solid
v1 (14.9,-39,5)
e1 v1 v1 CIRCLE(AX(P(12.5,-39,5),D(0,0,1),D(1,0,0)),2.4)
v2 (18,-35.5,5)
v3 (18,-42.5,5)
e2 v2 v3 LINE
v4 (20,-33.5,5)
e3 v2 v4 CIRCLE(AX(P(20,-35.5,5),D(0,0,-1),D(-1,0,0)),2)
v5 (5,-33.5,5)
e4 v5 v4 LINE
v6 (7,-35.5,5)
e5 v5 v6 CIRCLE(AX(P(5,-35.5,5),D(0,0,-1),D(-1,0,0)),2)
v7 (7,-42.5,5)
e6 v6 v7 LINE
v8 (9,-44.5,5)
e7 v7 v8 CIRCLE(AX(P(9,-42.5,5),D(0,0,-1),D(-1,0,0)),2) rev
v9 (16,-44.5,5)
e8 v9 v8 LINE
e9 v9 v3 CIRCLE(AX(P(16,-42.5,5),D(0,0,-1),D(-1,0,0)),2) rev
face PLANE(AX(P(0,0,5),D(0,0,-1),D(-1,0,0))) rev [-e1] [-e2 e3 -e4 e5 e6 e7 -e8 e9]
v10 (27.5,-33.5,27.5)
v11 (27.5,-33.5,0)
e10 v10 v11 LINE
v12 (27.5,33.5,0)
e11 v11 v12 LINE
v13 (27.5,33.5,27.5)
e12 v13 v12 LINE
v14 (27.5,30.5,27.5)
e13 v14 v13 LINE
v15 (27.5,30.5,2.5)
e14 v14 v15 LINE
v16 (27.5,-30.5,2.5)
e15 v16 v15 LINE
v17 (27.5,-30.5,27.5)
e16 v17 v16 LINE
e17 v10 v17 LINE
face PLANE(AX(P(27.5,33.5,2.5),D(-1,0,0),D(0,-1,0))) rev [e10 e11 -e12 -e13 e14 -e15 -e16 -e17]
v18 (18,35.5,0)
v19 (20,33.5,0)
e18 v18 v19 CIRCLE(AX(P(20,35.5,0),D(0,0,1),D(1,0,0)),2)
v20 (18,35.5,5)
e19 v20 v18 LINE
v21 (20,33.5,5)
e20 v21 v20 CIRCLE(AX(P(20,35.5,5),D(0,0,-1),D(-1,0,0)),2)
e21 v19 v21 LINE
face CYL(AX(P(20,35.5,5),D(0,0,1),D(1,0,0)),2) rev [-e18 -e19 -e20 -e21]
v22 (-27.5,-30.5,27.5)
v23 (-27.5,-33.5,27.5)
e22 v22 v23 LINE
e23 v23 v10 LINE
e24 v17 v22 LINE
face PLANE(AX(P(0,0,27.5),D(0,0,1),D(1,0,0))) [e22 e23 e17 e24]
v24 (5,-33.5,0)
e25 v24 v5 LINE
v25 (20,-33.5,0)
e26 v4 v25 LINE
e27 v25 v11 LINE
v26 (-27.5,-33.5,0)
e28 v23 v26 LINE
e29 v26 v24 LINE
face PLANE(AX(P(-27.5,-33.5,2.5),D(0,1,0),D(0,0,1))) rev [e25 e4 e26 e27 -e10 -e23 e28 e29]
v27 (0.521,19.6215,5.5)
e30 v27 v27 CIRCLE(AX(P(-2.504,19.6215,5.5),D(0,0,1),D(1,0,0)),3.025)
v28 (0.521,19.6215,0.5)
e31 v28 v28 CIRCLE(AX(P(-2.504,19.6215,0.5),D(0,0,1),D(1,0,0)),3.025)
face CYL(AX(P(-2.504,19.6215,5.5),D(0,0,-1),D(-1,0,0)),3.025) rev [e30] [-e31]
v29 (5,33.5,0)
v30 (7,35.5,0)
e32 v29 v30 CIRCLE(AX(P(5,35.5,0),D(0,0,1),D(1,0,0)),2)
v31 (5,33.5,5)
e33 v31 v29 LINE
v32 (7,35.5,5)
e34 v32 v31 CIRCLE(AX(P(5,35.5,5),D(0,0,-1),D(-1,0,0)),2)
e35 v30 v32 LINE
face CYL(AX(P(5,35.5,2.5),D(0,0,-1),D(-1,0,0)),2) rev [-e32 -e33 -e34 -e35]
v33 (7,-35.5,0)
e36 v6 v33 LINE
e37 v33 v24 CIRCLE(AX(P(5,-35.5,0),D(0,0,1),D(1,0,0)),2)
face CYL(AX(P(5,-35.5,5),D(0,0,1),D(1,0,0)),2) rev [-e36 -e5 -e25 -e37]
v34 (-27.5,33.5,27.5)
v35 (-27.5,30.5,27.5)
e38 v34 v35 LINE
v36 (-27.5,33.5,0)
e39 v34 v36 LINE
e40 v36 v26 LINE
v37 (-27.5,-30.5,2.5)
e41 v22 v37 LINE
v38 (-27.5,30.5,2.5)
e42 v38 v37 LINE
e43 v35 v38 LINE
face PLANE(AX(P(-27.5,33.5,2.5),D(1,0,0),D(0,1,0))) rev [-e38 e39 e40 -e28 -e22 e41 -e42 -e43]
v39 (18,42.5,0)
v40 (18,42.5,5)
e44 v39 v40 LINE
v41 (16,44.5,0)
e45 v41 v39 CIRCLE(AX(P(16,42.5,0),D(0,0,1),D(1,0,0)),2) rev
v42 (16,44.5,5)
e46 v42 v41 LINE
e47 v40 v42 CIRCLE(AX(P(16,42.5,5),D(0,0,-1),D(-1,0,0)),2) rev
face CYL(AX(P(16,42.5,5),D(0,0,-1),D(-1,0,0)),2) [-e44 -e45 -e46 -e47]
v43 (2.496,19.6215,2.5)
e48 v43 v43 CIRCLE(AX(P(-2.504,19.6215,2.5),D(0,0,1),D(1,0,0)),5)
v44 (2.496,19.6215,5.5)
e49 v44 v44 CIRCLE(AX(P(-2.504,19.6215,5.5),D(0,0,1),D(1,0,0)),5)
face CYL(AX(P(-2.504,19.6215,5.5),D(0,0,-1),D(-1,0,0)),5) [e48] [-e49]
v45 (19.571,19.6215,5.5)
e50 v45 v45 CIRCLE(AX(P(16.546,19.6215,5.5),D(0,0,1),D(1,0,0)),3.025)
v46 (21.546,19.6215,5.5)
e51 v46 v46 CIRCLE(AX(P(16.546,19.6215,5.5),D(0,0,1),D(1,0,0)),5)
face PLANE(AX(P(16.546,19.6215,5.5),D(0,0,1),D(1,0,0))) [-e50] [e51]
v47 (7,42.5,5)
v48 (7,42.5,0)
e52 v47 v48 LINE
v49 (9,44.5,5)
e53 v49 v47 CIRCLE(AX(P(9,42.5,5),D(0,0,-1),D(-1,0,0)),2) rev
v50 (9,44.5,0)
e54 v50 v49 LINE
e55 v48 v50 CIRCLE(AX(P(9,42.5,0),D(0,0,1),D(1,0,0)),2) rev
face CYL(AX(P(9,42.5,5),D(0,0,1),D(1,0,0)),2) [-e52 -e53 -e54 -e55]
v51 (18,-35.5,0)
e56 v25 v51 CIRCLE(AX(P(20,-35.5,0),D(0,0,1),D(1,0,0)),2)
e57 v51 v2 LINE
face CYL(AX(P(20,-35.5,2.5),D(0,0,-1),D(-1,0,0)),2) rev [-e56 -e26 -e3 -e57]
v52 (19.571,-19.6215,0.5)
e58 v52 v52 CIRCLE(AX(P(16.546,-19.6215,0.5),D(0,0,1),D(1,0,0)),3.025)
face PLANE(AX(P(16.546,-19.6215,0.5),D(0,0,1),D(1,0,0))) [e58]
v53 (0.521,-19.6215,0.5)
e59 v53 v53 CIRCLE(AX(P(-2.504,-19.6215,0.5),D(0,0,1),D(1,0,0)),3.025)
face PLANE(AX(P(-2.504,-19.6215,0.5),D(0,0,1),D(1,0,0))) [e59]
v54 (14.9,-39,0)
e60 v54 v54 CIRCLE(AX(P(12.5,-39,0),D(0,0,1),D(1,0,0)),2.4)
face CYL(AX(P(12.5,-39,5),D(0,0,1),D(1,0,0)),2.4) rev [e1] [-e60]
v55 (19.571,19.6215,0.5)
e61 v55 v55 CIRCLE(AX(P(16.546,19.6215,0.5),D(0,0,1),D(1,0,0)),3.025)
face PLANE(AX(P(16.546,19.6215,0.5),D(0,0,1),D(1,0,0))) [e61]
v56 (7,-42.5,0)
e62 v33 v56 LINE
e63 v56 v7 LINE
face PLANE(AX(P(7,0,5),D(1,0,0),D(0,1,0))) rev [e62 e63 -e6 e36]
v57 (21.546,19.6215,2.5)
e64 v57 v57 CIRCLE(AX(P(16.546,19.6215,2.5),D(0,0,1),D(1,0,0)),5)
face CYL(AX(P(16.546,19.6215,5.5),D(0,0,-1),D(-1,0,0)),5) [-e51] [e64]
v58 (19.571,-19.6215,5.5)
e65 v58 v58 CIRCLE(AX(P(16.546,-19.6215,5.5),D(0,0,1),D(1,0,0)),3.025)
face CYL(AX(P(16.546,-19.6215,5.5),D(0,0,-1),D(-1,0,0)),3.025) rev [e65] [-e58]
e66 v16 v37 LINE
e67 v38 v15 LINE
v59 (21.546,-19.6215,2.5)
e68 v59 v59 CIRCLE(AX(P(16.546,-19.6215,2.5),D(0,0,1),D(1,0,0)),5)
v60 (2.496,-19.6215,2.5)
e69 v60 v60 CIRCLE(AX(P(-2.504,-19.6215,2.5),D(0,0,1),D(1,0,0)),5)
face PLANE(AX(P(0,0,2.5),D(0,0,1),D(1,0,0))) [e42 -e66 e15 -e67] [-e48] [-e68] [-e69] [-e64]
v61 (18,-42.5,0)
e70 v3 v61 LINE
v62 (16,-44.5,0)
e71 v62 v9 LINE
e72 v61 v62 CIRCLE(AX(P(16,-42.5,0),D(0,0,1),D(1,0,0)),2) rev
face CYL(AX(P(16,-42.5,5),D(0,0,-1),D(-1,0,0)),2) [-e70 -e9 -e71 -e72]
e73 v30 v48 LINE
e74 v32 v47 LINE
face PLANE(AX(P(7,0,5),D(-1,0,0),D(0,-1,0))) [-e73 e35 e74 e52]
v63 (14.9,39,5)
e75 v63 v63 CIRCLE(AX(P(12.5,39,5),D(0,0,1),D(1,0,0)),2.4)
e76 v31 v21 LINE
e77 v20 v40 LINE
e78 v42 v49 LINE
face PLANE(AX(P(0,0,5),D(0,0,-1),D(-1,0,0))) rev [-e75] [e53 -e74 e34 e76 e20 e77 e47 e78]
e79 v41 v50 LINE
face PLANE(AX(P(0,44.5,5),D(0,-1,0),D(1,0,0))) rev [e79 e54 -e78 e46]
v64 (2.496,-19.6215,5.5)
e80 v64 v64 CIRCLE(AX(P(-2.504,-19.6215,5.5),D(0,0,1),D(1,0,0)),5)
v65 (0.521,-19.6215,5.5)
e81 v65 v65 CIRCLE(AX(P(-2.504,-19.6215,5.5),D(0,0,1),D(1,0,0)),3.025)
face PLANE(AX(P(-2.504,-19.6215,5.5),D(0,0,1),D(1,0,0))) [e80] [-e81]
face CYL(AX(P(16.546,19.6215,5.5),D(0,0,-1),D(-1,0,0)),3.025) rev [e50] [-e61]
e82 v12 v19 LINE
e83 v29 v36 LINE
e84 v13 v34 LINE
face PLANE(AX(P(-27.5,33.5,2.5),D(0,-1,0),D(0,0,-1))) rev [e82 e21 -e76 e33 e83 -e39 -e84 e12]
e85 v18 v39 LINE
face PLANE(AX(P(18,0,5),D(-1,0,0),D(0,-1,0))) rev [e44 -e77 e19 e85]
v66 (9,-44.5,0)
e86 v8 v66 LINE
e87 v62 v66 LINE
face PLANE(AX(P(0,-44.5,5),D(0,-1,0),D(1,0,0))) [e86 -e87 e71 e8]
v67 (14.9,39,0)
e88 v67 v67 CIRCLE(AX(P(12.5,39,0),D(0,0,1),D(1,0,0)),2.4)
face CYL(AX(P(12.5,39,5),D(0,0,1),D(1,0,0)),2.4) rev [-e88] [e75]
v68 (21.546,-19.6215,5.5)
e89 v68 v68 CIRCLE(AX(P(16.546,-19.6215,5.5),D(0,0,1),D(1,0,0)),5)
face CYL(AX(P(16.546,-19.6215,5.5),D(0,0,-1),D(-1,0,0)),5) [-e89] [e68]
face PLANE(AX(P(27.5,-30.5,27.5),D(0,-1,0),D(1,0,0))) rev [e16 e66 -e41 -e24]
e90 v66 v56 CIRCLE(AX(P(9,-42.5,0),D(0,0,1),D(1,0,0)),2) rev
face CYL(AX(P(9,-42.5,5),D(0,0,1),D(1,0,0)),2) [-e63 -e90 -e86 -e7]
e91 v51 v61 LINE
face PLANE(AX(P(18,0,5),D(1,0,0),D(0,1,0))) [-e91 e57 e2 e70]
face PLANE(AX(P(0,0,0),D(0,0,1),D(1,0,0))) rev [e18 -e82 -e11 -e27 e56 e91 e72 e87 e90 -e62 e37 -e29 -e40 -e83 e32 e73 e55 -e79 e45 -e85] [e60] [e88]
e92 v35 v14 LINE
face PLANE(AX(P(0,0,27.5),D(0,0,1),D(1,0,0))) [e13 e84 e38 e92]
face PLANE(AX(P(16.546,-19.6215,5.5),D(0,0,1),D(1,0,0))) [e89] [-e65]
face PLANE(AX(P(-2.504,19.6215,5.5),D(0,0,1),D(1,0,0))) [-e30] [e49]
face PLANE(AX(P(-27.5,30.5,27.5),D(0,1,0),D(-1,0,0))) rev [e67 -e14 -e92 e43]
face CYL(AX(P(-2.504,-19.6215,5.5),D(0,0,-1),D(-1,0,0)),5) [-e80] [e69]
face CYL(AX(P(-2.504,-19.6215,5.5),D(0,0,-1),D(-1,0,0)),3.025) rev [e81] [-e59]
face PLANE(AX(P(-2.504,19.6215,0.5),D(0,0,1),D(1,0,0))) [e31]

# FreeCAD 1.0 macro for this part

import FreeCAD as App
import Part
import Sketcher

V = App.Vector
Q = App.Units.Quantity


def edges_at(feature, points):
    """Names of the edges that pass closest to the given points."""
    edges = feature.Shape.Edges
    near = lambda p: min(range(len(edges)), key=lambda i: edges[i].distToShape(Part.Vertex(*p))[0])
    return sorted({f"Edge{near(p) + 1}" for p in points})


def add_polygon(sketch, points):
    """Adds a closed chain of lines whose ends are joined by coincident constraints."""
    first, n = sketch.GeometryCount, len(points)
    for a, b in zip(points, points[1:] + points[:1]):
        sketch.addGeometry(Part.LineSegment(App.Vector(*a, 0), App.Vector(*b, 0)), False)
    for i in range(n):
        sketch.addConstraint(Sketcher.Constraint("Coincident", first + i, 2, first + (i + 1) % n, 1))

doc = App.newDocument("Part")
params = doc.addObject("Spreadsheet::Sheet", "Params")
for row, (alias, value) in enumerate([
    ("sketch1_width", "55 mm"),
    ("sketch1_height", "67 mm"),
    ("pad1_length", "2.5 mm"),
    ("sketch2_width", "55 mm"),
    ("sketch2_height", "3 mm"),
    ("pad2_length", "25 mm"),
    ("sketch3_diameter", "10 mm"),
    ("sketch3_diameter2", "6.05 mm"),
    ("pad3_length", "3 mm"),
    ("sketch4_diameter", "6.05 mm"),
    ("pocket1_length", "2 mm"),
    ("sketch5_width", "11 mm"),
    ("pad4_length", "5 mm"),
    ("sketch6_diameter", "4.8 mm"),
    ("hole_diameter", "4.8 mm"),
    ("fillet_radius", "2 mm"),
], start=1):
    params.set(f"A{row}", alias)
    params.set(f"B{row}", "=" + value)
    params.setAlias(f"B{row}", alias)

body = doc.addObject("PartDesign::Body", "Body")

sketch1 = body.newObject("Sketcher::SketchObject", "Sketch")
sketch1.AttachmentSupport = (doc.getObject("XY_Plane"), [""])
sketch1.MapMode = "FlatFace"
add_polygon(sketch1, [(-28, 34), (-28, -34), (28, -34), (28, 34)])
sketch1.addConstraint([
    Sketcher.Constraint("Vertical", 0),
    Sketcher.Constraint("Horizontal", 1),
    Sketcher.Constraint("Vertical", 2),
    Sketcher.Constraint("Horizontal", 3),
    Sketcher.Constraint("Symmetric", 0, 2, 2, 2, -1, 1),
    Sketcher.Constraint("DistanceX", 1, 1, 1, 2, Q("55 mm")),
    Sketcher.Constraint("DistanceY", 0, 2, 0, 1, Q("67 mm")),
])
sketch1.setExpression("Constraints[9]", "Params.sketch1_width")
sketch1.setExpression("Constraints[10]", "Params.sketch1_height")
pad1 = body.newObject("PartDesign::Pad", "Pad")
pad1.Profile = sketch1
pad1.setExpression("Length", "Params.pad1_length")

sketch2 = body.newObject("Sketcher::SketchObject", "Sketch001")
sketch2.AttachmentSupport = (doc.getObject("XY_Plane"), [""])
sketch2.MapMode = "FlatFace"
sketch2.AttachmentOffset = App.Placement(V(0, 0, 2.5), App.Rotation())
add_polygon(sketch2, [(-27.5, 33.5), (-27.5, 30.5), (27.5, 30.5), (27.5, 33.5)])
add_polygon(sketch2, [(-27.5, -30.5), (-27.5, -33.5), (27.5, -33.5), (27.5, -30.5)])
sketch2.addConstraint([
    Sketcher.Constraint("Vertical", 0),
    Sketcher.Constraint("Horizontal", 1),
    Sketcher.Constraint("Vertical", 2),
    Sketcher.Constraint("Horizontal", 3),
    Sketcher.Constraint("Vertical", 4),
    Sketcher.Constraint("Horizontal", 5),
    Sketcher.Constraint("Vertical", 6),
    Sketcher.Constraint("Horizontal", 7),
    Sketcher.Constraint("Symmetric", 2, 2, 4, 2, -1, 1),
    Sketcher.Constraint("Symmetric", 0, 2, 6, 2, -1, 1),
    Sketcher.Constraint("Vertical", 3, 2, 4, 2),
    Sketcher.Constraint("DistanceX", 1, 1, 1, 2, Q("55 mm")),
    Sketcher.Constraint("DistanceY", 0, 2, 0, 1, Q("3 mm")),
    Sketcher.Constraint("DistanceY", 4, 2, 0, 2, Q("64 mm")),
])
sketch2.setExpression("Constraints[19]", "Params.sketch2_width")
sketch2.setExpression("Constraints[20]", "Params.sketch2_height")
pad2 = body.newObject("PartDesign::Pad", "Pad001")
pad2.Profile = sketch2
pad2.setExpression("Length", "Params.pad2_length")

sketch3 = body.newObject("Sketcher::SketchObject", "Sketch002")
sketch3.AttachmentSupport = (doc.getObject("XY_Plane"), [""])
sketch3.MapMode = "FlatFace"
sketch3.AttachmentOffset = App.Placement(V(0, 0, 2.5), App.Rotation())
sketch3.addGeometry([
    Part.Circle(V(-2.5, 19.6, 0), V(0, 0, 1), 5),
    Part.Circle(V(-2.5, 19.6, 0), V(0, 0, 1), 3),
    Part.Circle(V(16.5, 19.6, 0), V(0, 0, 1), 5),
    Part.Circle(V(16.5, 19.6, 0), V(0, 0, 1), 3),
    Part.Circle(V(16.5, -19.6, 0), V(0, 0, 1), 5),
    Part.Circle(V(16.5, -19.6, 0), V(0, 0, 1), 3),
    Part.Circle(V(-2.5, -19.6, 0), V(0, 0, 1), 5),
    Part.Circle(V(-2.5, -19.6, 0), V(0, 0, 1), 3),
], False)
sketch3.addConstraint([
    Sketcher.Constraint("Coincident", 1, 3, 0, 3),
    Sketcher.Constraint("Coincident", 3, 3, 2, 3),
    Sketcher.Constraint("Coincident", 5, 3, 4, 3),
    Sketcher.Constraint("Coincident", 7, 3, 6, 3),
    Sketcher.Constraint("Equal", 0, 2),
    Sketcher.Constraint("Equal", 1, 3),
    Sketcher.Constraint("Equal", 2, 4),
    Sketcher.Constraint("Equal", 3, 5),
    Sketcher.Constraint("Equal", 4, 6),
    Sketcher.Constraint("Equal", 5, 7),
    Sketcher.Constraint("Symmetric", 2, 3, 4, 3, -1),
    Sketcher.Constraint("Symmetric", 0, 3, 6, 3, -1),
    Sketcher.Constraint("Horizontal", 1, 3, 2, 3),
    Sketcher.Constraint("Diameter", 0, Q("10 mm")),
    Sketcher.Constraint("Diameter", 1, Q("6.05 mm")),
    Sketcher.Constraint("DistanceX", 0, 3, 2, 3, Q("19.05 mm")),
    Sketcher.Constraint("DistanceX", 0, 3, -1, 1, Q("2.504 mm")),
    Sketcher.Constraint("DistanceY", 4, 3, 2, 3, Q("39.243 mm")),
])
sketch3.setExpression("Constraints[13]", "Params.sketch3_diameter")
sketch3.setExpression("Constraints[14]", "Params.sketch3_diameter2")
pad3 = body.newObject("PartDesign::Pad", "Pad002")
pad3.Profile = sketch3
pad3.setExpression("Length", "Params.pad3_length")

sketch4 = body.newObject("Sketcher::SketchObject", "Sketch003")
sketch4.AttachmentSupport = (doc.getObject("XY_Plane"), [""])
sketch4.MapMode = "FlatFace"
sketch4.AttachmentOffset = App.Placement(V(0, 0, 0.5), App.Rotation())
sketch4.addGeometry([
    Part.Circle(V(16.5, -19.6, 0), V(0, 0, 1), 3),
    Part.Circle(V(-2.5, -19.6, 0), V(0, 0, 1), 3),
    Part.Circle(V(16.5, 19.6, 0), V(0, 0, 1), 3),
    Part.Circle(V(-2.5, 19.6, 0), V(0, 0, 1), 3),
], False)
sketch4.addConstraint([
    Sketcher.Constraint("Equal", 0, 1),
    Sketcher.Constraint("Equal", 1, 2),
    Sketcher.Constraint("Equal", 2, 3),
    Sketcher.Constraint("Symmetric", 0, 3, 2, 3, -1),
    Sketcher.Constraint("Symmetric", 1, 3, 3, 3, -1),
    Sketcher.Constraint("Horizontal", 0, 3, 1, 3),
    Sketcher.Constraint("Diameter", 0, Q("6.05 mm")),
    Sketcher.Constraint("DistanceX", 1, 3, 0, 3, Q("19.05 mm")),
    Sketcher.Constraint("DistanceX", -1, 1, 0, 3, Q("16.546 mm")),
    Sketcher.Constraint("DistanceY", 0, 3, 2, 3, Q("39.243 mm")),
])
sketch4.setExpression("Constraints[6]", "Params.sketch4_diameter")
pocket1 = body.newObject("PartDesign::Pocket", "Pocket")
pocket1.Profile = sketch4
pocket1.setExpression("Length", "Params.pocket1_length")
pocket1.Reversed = True

sketch5 = body.newObject("Sketcher::SketchObject", "Sketch004")
sketch5.AttachmentSupport = (doc.getObject("XY_Plane"), [""])
sketch5.MapMode = "FlatFace"
add_polygon(sketch5, [(7, 34), (7, 44), (18, 44), (18, 34)])
sketch5.addConstraint([
    Sketcher.Constraint("Vertical", 0),
    Sketcher.Constraint("Horizontal", 1),
    Sketcher.Constraint("Vertical", 2),
    Sketcher.Constraint("Horizontal", 3),
    Sketcher.Constraint("Equal", 3, 0),
    Sketcher.Constraint("DistanceX", 1, 1, 1, 2, Q("11 mm")),
    Sketcher.Constraint("DistanceX", -1, 1, 0, 2, Q("7 mm")),
    Sketcher.Constraint("DistanceY", -1, 1, 0, 2, Q("44.5 mm")),
])
sketch5.setExpression("Constraints[9]", "Params.sketch5_width")
pad4 = body.newObject("PartDesign::Pad", "Pad003")
pad4.Profile = sketch5
pad4.setExpression("Length", "Params.pad4_length")

sketch6 = body.newObject("Sketcher::SketchObject", "Sketch005")
sketch6.AttachmentSupport = (doc.getObject("XY_Plane"), [""])
sketch6.MapMode = "FlatFace"
sketch6.AttachmentOffset = App.Placement(V(0, 0, 5), App.Rotation())
sketch6.addGeometry(Part.Circle(V(12.5, 39, 0), V(0, 0, 1), 2.4), False)
sketch6.addConstraint([
    Sketcher.Constraint("Diameter", 0, Q("4.8 mm")),
    Sketcher.Constraint("DistanceY", -1, 1, 0, 3, Q("39 mm")),
    Sketcher.Constraint("DistanceX", -1, 1, 0, 3, Q("12.5 mm")),
])
sketch6.setExpression("Constraints[0]", "Params.sketch6_diameter")
doc.recompute()
hole = body.newObject("PartDesign::Hole", "Hole")
hole.Profile = sketch6
hole.ThreadType = "None"
hole.setExpression("Diameter", "Params.hole_diameter")
hole.DepthType = "ThroughAll"
doc.recompute()

mirrored = body.newObject("PartDesign::Mirrored", "Mirrored")
mirrored.Originals = [pad4, hole]
mirrored.MirrorPlane = (doc.getObject("XZ_Plane"), [""])
body.Tip = mirrored
doc.recompute()

fillet = body.newObject("PartDesign::Fillet", "Fillet")
fillet.Base = (mirrored, edges_at(mirrored, [
    (7, -44.5, 2.5),
    (18, -44.5, 2.5),
    (18, -33.5, 2.5),
    (7, -33.5, 2.5),
    (18, 44.5, 2.5),
    (7, 44.5, 2.5),
    (7, 33.5, 2.5),
    (18, 33.5, 2.5),
]))
fillet.setExpression("Radius", "Params.fillet_radius")

doc.recompute()
